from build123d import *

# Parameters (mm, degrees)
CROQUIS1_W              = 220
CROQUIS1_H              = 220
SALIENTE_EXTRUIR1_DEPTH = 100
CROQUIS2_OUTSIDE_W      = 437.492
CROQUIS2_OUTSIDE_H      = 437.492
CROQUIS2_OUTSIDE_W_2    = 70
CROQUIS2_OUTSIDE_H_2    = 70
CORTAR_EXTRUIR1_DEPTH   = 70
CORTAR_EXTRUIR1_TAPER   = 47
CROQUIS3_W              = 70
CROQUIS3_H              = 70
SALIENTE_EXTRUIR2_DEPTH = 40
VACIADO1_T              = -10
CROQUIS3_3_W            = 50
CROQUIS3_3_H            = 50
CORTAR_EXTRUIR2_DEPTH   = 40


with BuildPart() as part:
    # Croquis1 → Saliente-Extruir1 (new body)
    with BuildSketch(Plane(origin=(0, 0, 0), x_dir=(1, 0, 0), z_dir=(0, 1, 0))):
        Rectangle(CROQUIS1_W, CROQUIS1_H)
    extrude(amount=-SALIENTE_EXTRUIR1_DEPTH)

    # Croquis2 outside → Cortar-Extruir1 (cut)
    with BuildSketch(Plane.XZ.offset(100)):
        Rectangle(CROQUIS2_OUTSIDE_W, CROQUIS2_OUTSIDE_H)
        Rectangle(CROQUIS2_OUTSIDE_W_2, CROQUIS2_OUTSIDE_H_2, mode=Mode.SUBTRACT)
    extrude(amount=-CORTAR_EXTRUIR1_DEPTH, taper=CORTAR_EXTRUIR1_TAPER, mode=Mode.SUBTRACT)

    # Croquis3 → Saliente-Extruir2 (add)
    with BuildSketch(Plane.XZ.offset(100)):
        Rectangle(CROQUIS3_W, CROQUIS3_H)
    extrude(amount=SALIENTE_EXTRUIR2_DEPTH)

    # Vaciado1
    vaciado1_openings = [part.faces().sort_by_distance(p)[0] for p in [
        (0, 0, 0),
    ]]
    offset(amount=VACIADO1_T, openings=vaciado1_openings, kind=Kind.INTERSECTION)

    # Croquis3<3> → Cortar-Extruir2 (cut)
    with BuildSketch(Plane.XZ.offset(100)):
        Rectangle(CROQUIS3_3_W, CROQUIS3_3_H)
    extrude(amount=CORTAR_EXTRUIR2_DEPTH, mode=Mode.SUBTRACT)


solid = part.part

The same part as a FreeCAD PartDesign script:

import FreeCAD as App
import Part
import Sketcher
Q = App.Units.Quantity


def faces_at(feature, points):
    """Names of the faces that lie closest to the given points."""
    faces = feature.Shape.Faces
    near = lambda p: min(range(len(faces)), key=lambda i: faces[i].distToShape(Part.Vertex(*p))[0])
    return sorted({f"Face{near(p) + 1}" for p in points})


def add_polygon(sketch, points):
    """Adds a closed chain of lines whose ends are joined by coincident constraints."""
    first, n = sketch.GeometryCount, len(points)
    for a, b in zip(points, points[1:] + points[:1]):
        sketch.addGeometry(Part.LineSegment(App.Vector(*a, 0), App.Vector(*b, 0)), False)
    for i in range(n):
        sketch.addConstraint(Sketcher.Constraint("Coincident", first + i, 2, first + (i + 1) % n, 1))

doc = App.newDocument("Part")
body = doc.addObject("PartDesign::Body", "Body")

sketch1 = body.newObject("Sketcher::SketchObject", "Sketch")
sketch1.AttachmentSupport = (doc.getObject("XZ_Plane"), [""])
sketch1.MapMode = "FlatFace"
add_polygon(sketch1, [(-110, -110), (-110, 110), (110, 110), (110, -110)])
sketch1.addConstraint([
    Sketcher.Constraint("Vertical", 0),
    Sketcher.Constraint("Horizontal", 1),
    Sketcher.Constraint("Vertical", 2),
    Sketcher.Constraint("Horizontal", 3),
    Sketcher.Constraint("Symmetric", 0, 2, 2, 2, -1, 1),
    Sketcher.Constraint("Equal", 3, 0),
    Sketcher.Constraint("DistanceX", 1, 1, 1, 2, Q("220 mm")),
])
pad1 = body.newObject("PartDesign::Pad", "Pad")
pad1.Profile = sketch1
pad1.Length = 100

sketch2 = body.newObject("Sketcher::SketchObject", "Sketch001")
sketch2.AttachmentSupport = (doc.getObject("XZ_Plane"), [""])
sketch2.MapMode = "FlatFace"
sketch2.AttachmentOffset = App.Placement(App.Vector(0, 0, 100), App.Rotation())
add_polygon(sketch2, [(-219, 219), (-219, -219), (219, -219), (219, 219)])
add_polygon(sketch2, [(35, -35), (-35, -35), (-35, 35), (35, 35)])
sketch2.addConstraint([
    Sketcher.Constraint("Vertical", 0),
    Sketcher.Constraint("Horizontal", 1),
    Sketcher.Constraint("Vertical", 2),
    Sketcher.Constraint("Horizontal", 3),
    Sketcher.Constraint("Horizontal", 4),
    Sketcher.Constraint("Vertical", 5),
    Sketcher.Constraint("Horizontal", 6),
    Sketcher.Constraint("Vertical", 7),
    Sketcher.Constraint("Symmetric", 0, 2, 2, 2, -1, 1),
    Sketcher.Constraint("Symmetric", 4, 2, 6, 2, -1, 1),
    Sketcher.Constraint("Equal", 3, 0),
    Sketcher.Constraint("Equal", 6, 5),
    Sketcher.Constraint("DistanceX", 4, 2, 4, 1, Q("70 mm")),
    Sketcher.Constraint("DistanceX", 1, 1, 1, 2, Q("437.492 mm")),
])
pocket1 = body.newObject("PartDesign::Pocket", "Pocket")
pocket1.Profile = sketch2
pocket1.Length = 70
pocket1.TaperAngle = 47

sketch3 = body.newObject("Sketcher::SketchObject", "Sketch002")
sketch3.AttachmentSupport = (doc.getObject("XZ_Plane"), [""])
sketch3.MapMode = "FlatFace"
sketch3.AttachmentOffset = App.Placement(App.Vector(0, 0, 100), App.Rotation())
add_polygon(sketch3, [(-35, 35), (-35, -35), (35, -35), (35, 35)])
sketch3.addConstraint([
    Sketcher.Constraint("Vertical", 0),
    Sketcher.Constraint("Horizontal", 1),
    Sketcher.Constraint("Vertical", 2),
    Sketcher.Constraint("Horizontal", 3),
    Sketcher.Constraint("Symmetric", 0, 2, 2, 2, -1, 1),
    Sketcher.Constraint("Equal", 3, 0),
    Sketcher.Constraint("DistanceX", 1, 1, 1, 2, Q("70 mm")),
])
pad2 = body.newObject("PartDesign::Pad", "Pad001")
pad2.Profile = sketch3
pad2.Length = 40
doc.recompute()

thickness = body.newObject("PartDesign::Thickness", "Thickness")
thickness.Base = (pad2, faces_at(pad2, [(0, 0, 0)]))
thickness.Value = 10
thickness.Reversed = True
thickness.Join = "Intersection"

sketch4 = body.newObject("Sketcher::SketchObject", "Sketch003")
sketch4.AttachmentSupport = (doc.getObject("XZ_Plane"), [""])
sketch4.MapMode = "FlatFace"
sketch4.AttachmentOffset = App.Placement(App.Vector(0, 0, 100), App.Rotation())
add_polygon(sketch4, [(-25, 25), (-25, -25), (25, -25), (25, 25)])
sketch4.addConstraint([
    Sketcher.Constraint("Vertical", 0),
    Sketcher.Constraint("Horizontal", 1),
    Sketcher.Constraint("Vertical", 2),
    Sketcher.Constraint("Horizontal", 3),
    Sketcher.Constraint("Symmetric", 0, 2, 2, 2, -1, 1),
    Sketcher.Constraint("Equal", 3, 0),
    Sketcher.Constraint("DistanceX", 1, 1, 1, 2, Q("50 mm")),
])
pocket2 = body.newObject("PartDesign::Pocket", "Pocket001")
pocket2.Profile = sketch4
pocket2.Length = 40
pocket2.Reversed = True

doc.recompute()
